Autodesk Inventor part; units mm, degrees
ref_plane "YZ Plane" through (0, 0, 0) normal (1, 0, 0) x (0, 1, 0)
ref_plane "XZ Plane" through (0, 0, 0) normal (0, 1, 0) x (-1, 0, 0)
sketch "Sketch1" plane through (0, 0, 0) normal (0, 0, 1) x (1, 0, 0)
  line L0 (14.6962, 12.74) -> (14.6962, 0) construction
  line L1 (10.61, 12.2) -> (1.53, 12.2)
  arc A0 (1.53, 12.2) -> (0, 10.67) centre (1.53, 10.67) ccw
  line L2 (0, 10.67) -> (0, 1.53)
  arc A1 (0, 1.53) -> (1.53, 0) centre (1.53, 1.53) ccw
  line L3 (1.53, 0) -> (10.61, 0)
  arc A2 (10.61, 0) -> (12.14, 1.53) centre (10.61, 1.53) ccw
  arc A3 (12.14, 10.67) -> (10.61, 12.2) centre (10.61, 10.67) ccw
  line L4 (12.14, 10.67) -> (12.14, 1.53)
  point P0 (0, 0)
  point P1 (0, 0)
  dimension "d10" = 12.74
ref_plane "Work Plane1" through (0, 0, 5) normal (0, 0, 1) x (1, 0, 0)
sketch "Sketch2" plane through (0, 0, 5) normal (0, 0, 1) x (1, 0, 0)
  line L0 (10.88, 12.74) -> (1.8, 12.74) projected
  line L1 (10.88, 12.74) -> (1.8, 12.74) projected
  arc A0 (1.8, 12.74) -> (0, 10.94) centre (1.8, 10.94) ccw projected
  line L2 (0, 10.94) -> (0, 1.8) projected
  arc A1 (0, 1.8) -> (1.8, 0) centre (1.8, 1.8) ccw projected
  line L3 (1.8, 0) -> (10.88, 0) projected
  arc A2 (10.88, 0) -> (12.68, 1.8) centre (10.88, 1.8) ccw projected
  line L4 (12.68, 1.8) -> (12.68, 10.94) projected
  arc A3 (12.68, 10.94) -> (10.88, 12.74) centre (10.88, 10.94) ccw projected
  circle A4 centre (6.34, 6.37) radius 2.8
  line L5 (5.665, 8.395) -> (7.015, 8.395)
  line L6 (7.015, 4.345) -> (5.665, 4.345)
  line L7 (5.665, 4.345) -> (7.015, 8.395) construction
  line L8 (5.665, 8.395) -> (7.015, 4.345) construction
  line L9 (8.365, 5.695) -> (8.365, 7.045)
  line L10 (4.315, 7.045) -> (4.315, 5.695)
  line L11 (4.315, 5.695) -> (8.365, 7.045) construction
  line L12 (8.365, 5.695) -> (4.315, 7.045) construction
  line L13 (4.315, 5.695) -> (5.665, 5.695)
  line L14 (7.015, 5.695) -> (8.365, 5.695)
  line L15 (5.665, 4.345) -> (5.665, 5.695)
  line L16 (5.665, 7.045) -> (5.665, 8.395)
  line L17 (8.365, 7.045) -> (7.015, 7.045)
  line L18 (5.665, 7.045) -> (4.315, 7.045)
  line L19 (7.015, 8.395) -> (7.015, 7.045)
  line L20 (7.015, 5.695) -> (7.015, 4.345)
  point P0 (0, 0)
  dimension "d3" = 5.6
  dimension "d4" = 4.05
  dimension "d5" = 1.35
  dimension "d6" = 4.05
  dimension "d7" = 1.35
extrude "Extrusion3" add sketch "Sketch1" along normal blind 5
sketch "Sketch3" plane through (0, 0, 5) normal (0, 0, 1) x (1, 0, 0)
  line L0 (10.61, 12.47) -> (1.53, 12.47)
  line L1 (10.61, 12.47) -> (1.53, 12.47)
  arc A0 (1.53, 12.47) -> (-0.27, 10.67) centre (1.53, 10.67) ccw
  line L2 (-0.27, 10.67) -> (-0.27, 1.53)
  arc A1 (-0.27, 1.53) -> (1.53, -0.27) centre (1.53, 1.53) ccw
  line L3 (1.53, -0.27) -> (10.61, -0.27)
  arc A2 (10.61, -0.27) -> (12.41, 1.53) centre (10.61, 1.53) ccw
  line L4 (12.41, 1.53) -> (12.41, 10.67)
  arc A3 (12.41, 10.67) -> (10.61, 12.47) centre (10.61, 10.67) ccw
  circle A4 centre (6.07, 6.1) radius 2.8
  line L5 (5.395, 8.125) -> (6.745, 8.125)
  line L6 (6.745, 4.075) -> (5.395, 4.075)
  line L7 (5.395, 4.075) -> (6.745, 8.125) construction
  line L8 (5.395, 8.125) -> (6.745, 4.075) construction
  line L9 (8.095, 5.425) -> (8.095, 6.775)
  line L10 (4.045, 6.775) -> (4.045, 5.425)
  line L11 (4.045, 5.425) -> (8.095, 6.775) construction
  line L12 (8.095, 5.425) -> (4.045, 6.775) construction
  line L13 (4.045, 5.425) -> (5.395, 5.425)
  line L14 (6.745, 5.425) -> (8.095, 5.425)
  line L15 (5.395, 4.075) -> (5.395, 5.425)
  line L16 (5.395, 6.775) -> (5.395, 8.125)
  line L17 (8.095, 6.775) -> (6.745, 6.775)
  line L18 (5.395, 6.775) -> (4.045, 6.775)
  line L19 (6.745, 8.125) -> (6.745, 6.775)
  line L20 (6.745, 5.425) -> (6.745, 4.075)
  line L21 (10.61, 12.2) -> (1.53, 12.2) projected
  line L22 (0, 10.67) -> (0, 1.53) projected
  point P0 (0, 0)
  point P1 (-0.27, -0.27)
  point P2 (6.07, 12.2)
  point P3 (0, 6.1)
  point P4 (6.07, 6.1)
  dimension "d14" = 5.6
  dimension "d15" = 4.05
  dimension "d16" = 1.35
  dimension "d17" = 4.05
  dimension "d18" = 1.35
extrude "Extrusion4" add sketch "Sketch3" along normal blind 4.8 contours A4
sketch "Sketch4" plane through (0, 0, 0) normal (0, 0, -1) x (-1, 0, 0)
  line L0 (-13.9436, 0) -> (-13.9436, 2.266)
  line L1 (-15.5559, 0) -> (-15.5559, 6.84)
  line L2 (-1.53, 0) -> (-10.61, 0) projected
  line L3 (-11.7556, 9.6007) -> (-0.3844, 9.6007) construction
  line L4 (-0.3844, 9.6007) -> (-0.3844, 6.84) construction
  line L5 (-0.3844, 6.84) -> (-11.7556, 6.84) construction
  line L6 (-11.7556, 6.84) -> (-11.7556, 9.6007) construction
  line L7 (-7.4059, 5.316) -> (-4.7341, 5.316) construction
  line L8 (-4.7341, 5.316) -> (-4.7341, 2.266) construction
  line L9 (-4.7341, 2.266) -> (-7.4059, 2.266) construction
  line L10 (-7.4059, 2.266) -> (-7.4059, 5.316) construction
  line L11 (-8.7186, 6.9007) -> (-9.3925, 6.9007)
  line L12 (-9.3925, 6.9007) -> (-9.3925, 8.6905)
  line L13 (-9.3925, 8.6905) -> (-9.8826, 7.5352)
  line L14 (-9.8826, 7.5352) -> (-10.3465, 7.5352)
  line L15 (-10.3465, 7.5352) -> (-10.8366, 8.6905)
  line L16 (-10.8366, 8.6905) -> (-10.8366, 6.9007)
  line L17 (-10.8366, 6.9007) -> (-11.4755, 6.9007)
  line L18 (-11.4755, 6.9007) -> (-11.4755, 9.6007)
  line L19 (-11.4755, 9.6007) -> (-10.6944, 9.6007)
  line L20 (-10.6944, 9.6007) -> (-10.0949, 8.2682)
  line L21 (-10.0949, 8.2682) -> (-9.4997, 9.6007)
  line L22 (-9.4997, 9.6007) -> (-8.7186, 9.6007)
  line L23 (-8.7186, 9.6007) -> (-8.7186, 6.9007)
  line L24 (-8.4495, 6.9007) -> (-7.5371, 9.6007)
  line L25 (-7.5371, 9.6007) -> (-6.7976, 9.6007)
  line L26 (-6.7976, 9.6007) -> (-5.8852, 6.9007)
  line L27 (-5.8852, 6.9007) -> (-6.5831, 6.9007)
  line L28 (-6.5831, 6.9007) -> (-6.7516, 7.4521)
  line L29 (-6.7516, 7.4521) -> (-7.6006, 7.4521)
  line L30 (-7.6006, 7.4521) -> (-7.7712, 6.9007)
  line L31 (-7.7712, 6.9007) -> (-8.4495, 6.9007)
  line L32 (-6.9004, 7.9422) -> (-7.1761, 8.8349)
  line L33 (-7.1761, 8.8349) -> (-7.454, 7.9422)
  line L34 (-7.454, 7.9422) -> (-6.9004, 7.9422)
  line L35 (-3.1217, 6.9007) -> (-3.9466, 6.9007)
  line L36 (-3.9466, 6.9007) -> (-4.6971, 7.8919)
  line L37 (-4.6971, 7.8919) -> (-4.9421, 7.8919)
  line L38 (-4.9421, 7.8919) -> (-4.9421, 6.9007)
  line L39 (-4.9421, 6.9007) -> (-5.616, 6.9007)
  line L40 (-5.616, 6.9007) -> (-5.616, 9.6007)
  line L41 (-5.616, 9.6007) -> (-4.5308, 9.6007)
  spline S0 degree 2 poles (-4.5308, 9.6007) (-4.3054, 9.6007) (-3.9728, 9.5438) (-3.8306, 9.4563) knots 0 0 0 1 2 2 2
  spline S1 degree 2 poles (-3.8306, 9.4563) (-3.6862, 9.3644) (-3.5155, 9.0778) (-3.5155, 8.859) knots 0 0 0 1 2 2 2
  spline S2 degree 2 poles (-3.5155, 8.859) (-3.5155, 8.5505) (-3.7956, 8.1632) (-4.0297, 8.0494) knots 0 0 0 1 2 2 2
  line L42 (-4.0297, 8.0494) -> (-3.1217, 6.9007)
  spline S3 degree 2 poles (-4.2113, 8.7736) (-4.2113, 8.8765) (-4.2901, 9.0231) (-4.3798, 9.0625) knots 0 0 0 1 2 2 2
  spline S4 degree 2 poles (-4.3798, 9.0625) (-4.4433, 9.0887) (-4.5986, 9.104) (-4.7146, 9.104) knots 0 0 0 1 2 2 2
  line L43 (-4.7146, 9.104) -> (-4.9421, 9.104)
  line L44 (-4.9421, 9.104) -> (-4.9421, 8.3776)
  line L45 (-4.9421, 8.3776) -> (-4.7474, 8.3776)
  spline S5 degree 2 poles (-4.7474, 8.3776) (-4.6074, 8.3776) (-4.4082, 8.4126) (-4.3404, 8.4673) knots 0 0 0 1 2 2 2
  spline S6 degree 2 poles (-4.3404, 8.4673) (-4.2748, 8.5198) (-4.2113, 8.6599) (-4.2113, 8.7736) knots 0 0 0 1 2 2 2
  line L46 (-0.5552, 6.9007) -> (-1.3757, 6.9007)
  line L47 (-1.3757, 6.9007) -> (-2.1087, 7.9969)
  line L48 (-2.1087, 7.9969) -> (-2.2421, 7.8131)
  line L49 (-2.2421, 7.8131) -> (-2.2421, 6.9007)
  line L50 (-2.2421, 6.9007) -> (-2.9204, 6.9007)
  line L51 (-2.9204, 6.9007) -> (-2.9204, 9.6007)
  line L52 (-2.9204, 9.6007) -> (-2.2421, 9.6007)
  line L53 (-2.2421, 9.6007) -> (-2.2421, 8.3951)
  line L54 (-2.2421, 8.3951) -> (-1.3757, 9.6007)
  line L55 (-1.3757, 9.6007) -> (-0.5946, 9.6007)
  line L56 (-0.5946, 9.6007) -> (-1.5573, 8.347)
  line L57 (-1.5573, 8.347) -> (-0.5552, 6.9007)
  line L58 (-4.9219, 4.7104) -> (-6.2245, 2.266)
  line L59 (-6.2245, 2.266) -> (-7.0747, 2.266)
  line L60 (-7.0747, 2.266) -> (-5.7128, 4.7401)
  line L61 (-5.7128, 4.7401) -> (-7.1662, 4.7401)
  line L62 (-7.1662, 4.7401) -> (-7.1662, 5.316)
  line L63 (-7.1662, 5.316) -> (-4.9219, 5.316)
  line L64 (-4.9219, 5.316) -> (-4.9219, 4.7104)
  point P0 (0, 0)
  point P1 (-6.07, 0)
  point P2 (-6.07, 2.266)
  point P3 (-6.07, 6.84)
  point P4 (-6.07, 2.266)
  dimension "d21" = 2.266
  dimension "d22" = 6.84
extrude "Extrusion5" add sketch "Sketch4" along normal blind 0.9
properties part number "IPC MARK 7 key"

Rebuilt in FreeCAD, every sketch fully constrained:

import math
import FreeCAD as App
import Part
import Sketcher


def add_polygon(sketch, points):
    """Adds a closed chain of lines whose ends are joined by coincident constraints."""
    first, n = sketch.GeometryCount, len(points)
    for a, b in zip(points, points[1:] + points[:1]):
        sketch.addGeometry(Part.LineSegment(App.Vector(*a, 0), App.Vector(*b, 0)), False)
    for i in range(n):
        sketch.addConstraint(Sketcher.Constraint("Coincident", first + i, 2, first + (i + 1) % n, 1))

doc = App.newDocument("Part")
params = doc.addObject("Spreadsheet::Sheet", "Params")
for row, (alias, value) in enumerate([
    ("sketch1_radius", "1.53 mm"),
    ("sketch1_width", "9.08 mm"),
    ("sketch1_height", "9.14 mm"),
    ("pad1_length", "5 mm"),
    ("sketch2_diameter", "5.6 mm"),
    ("sketch2_width", "1.35 mm"),
    ("pad2_length", "4.8 mm"),
    ("sketch3_height", "2.7 mm"),
    ("sketch3_height2", "2.7 mm"),
    ("sketch3_height3", "2.7 mm"),
    ("sketch3_height4", "2.7 mm"),
    ("sketch3_length", "2.85 mm"),
    ("pad3_length", "0.9 mm"),
], start=1):
    params.set(f"A{row}", alias)
    params.set(f"B{row}", "=" + value)
    params.setAlias(f"B{row}", alias)

body = doc.addObject("PartDesign::Body", "Body")

# Sketch on XY plane
sketch1 = body.newObject("Sketcher::SketchObject", "Sketch")
sketch1.AttachmentSupport = (doc.getObject("XY_Plane"), [""])
sketch1.MapMode = "FlatFace"
sketch1.addGeometry([
    Part.ArcOfCircle(Part.Circle(App.Vector(10.6, 10.7, 0), App.Vector(0, 0, 1), 1.5), math.radians(0), math.radians(90)),  # 0
    Part.LineSegment(App.Vector(10.6, 12.2, 0), App.Vector(1.5, 12.2, 0)),  # 1
    Part.ArcOfCircle(Part.Circle(App.Vector(1.5, 10.7, 0), App.Vector(0, 0, 1), 1.5), math.radians(90), math.radians(180)),  # 2
    Part.LineSegment(App.Vector(0, 10.7, 0), App.Vector(0, 1.5, 0)),  # 3
    Part.ArcOfCircle(Part.Circle(App.Vector(1.5, 1.5, 0), App.Vector(0, 0, 1), 1.5), math.radians(180), math.radians(270)),  # 4
    Part.LineSegment(App.Vector(1.5, 0, 0), App.Vector(10.6, 0, 0)),  # 5
    Part.ArcOfCircle(Part.Circle(App.Vector(10.6, 1.5, 0), App.Vector(0, 0, 1), 1.5), math.radians(-90), math.radians(0)),  # 6
    Part.LineSegment(App.Vector(12.1, 1.5, 0), App.Vector(12.1, 10.7, 0)),  # 7
], False)
sketch1.addConstraint([
    Sketcher.Constraint("Tangent", 0, 2, 1, 1),
    Sketcher.Constraint("Tangent", 1, 2, 2, 1),
    Sketcher.Constraint("Tangent", 2, 2, 3, 1),
    Sketcher.Constraint("Tangent", 3, 2, 4, 1),
    Sketcher.Constraint("Tangent", 4, 2, 5, 1),
    Sketcher.Constraint("Tangent", 5, 2, 6, 1),
    Sketcher.Constraint("Tangent", 6, 2, 7, 1),
    Sketcher.Constraint("Tangent", 7, 2, 0, 1),
    Sketcher.Constraint("Horizontal", 1),
    Sketcher.Constraint("Vertical", 3),
    Sketcher.Constraint("Horizontal", 5),
    Sketcher.Constraint("Vertical", 7),
    Sketcher.Constraint("Equal", 0, 2),
    Sketcher.Constraint("Equal", 2, 4),
    Sketcher.Constraint("Equal", 4, 6),
    Sketcher.Constraint("PointOnObject", 2, 2, -2),
    Sketcher.Constraint("PointOnObject", 4, 2, -1),
    Sketcher.Constraint("Radius", 0, 1.53),
    Sketcher.Constraint("DistanceX", 1, 2, 1, 1, 9.08),
    Sketcher.Constraint("DistanceY", 3, 2, 3, 1, 9.14),
])
sketch1.setExpression("Constraints[17]", "Params.sketch1_radius")
sketch1.setExpression("Constraints[18]", "Params.sketch1_width")
sketch1.setExpression("Constraints[19]", "Params.sketch1_height")
pad1 = body.newObject("PartDesign::Pad", "Pad")
pad1.Profile = sketch1
pad1.setExpression("Length", "Params.pad1_length")

# Sketch on XY plane
sketch2 = body.newObject("Sketcher::SketchObject", "Sketch001")
sketch2.AttachmentSupport = (doc.getObject("XY_Plane"), [""])
sketch2.MapMode = "FlatFace"
sketch2.AttachmentOffset = App.Placement(App.Vector(0, 0, 5), App.Rotation())
sketch2.addGeometry(Part.Circle(App.Vector(6.1, 6.1, 0), App.Vector(0, 0, 1), 2.8), False)  # 0
add_polygon(sketch2, [(5.4, 6.8), (5.4, 8.1), (6.7, 8.1), (6.7, 6.8), (8.1, 6.8), (8.1, 5.4), (6.7, 5.4), (6.7, 4.1), (5.4, 4.1), (5.4, 5.4), (4, 5.4), (4, 6.8)])  # lines 1-12
sketch2.addConstraint([
    Sketcher.Constraint("Vertical", 1),
    Sketcher.Constraint("Horizontal", 2),
    Sketcher.Constraint("Vertical", 3),
    Sketcher.Constraint("Horizontal", 4),
    Sketcher.Constraint("Vertical", 5),
    Sketcher.Constraint("Horizontal", 6),
    Sketcher.Constraint("Vertical", 7),
    Sketcher.Constraint("Horizontal", 8),
    Sketcher.Constraint("Vertical", 9),
    Sketcher.Constraint("Horizontal", 10),
    Sketcher.Constraint("Vertical", 11),
    Sketcher.Constraint("Horizontal", 12),
    Sketcher.Constraint("Horizontal", 6, 2, 9, 2),
    Sketcher.Constraint("Horizontal", 4, 2, 11, 2),
    Sketcher.Constraint("Vertical", 3, 2, 6, 2),
    Sketcher.Constraint("Vertical", 1, 2, 8, 2),
    Sketcher.Constraint("Equal", 2, 4),
    Sketcher.Constraint("Equal", 8, 10),
    Sketcher.Constraint("Equal", 12, 1),
    Sketcher.Constraint("Equal", 3, 5),
    Sketcher.Constraint("Equal", 5, 7),
    Sketcher.Constraint("Diameter", 0, 5.6),
    Sketcher.Constraint("DistanceX", 2, 1, 2, 2, 1.35),
    Sketcher.Constraint("DistanceY", -1, 1, 0, 3, 6.1),
    Sketcher.Constraint("DistanceX", -1, 1, 0, 3, 6.07),
    Sketcher.Constraint("DistanceX", -1, 1, 1, 2, 5.395),
    Sketcher.Constraint("DistanceY", -1, 1, 1, 2, 8.125),
])
sketch2.setExpression("Constraints[33]", "Params.sketch2_diameter")
sketch2.setExpression("Constraints[34]", "Params.sketch2_width")
pad2 = body.newObject("PartDesign::Pad", "Pad001")
pad2.Profile = sketch2
pad2.setExpression("Length", "Params.pad2_length")

# Sketch on XY plane
sketch3 = body.newObject("Sketcher::SketchObject", "Sketch002")
sketch3.AttachmentSupport = (doc.getObject("XY_Plane"), [""])
sketch3.MapMode = "FlatFace"
add_polygon(sketch3, [(9.3925, 6.9007), (8.7186, 6.9007), (8.7186, 9.6007), (9.4997, 9.6007), (10.0949, 8.2682), (10.6944, 9.6007), (11.4755, 9.6007), (11.4755, 6.9007), (10.8366, 6.9007), (10.8366, 8.6905), (10.3465, 7.5352), (9.8826, 7.5352), (9.3925, 8.6905)])  # lines 0-12
add_polygon(sketch3, [(7.5371, 9.6007), (8.4495, 6.9007), (7.7712, 6.9007), (7.6006, 7.4521), (6.7516, 7.4521), (6.5831, 6.9007), (5.8852, 6.9007), (6.7976, 9.6007)])  # lines 13-20
add_polygon(sketch3, [(7.1761, 8.8349), (6.9004, 7.9422), (7.454, 7.9422)])  # lines 21-23
sketch3.addGeometry(Part.LineSegment(App.Vector(3.9466, 6.9007, 0), App.Vector(3.1217, 6.9007, 0)), False)  # 24
sketch3.addGeometry(Part.LineSegment(App.Vector(3.1217, 6.9007, 0), App.Vector(4.0297, 8.0494, 0)), False)  # 25
sketch3.addGeometry(Part.BSplineCurve([App.Vector(3.5155, 8.859, 0), App.Vector(3.5155, 8.5505, 0), App.Vector(3.7956, 8.1632, 0), App.Vector(4.0297, 8.0494, 0)], [3, 1, 3], [0, 1, 2], False, 2, [1, 1, 1, 1], False), False)  # 26
sketch3.addGeometry(Part.BSplineCurve([App.Vector(3.8306, 9.4563, 0), App.Vector(3.6862, 9.3644, 0), App.Vector(3.5155, 9.0778, 0), App.Vector(3.5155, 8.859, 0)], [3, 1, 3], [0, 1, 2], False, 2, [1, 1, 1, 1], False), False)  # 27
sketch3.addGeometry(Part.BSplineCurve([App.Vector(4.5308, 9.6007, 0), App.Vector(4.3054, 9.6007, 0), App.Vector(3.9728, 9.5438, 0), App.Vector(3.8306, 9.4563, 0)], [3, 1, 3], [0, 1, 2], False, 2, [1, 1, 1, 1], False), False)  # 28
sketch3.addGeometry(Part.LineSegment(App.Vector(4.5308, 9.6007, 0), App.Vector(5.616, 9.6007, 0)), False)  # 29
sketch3.addGeometry(Part.LineSegment(App.Vector(5.616, 9.6007, 0), App.Vector(5.616, 6.9007, 0)), False)  # 30
sketch3.addGeometry(Part.LineSegment(App.Vector(5.616, 6.9007, 0), App.Vector(4.9421, 6.9007, 0)), False)  # 31
sketch3.addGeometry(Part.LineSegment(App.Vector(4.9421, 6.9007, 0), App.Vector(4.9421, 7.8919, 0)), False)  # 32
sketch3.addGeometry(Part.LineSegment(App.Vector(4.9421, 7.8919, 0), App.Vector(4.6971, 7.8919, 0)), False)  # 33
sketch3.addGeometry(Part.LineSegment(App.Vector(4.6971, 7.8919, 0), App.Vector(3.9466, 6.9007, 0)), False)  # 34
sketch3.addGeometry(Part.BSplineCurve([App.Vector(4.2113, 8.7736, 0), App.Vector(4.2113, 8.8765, 0), App.Vector(4.2901, 9.0231, 0), App.Vector(4.3798, 9.0625, 0)], [3, 1, 3], [0, 1, 2], False, 2, [1, 1, 1, 1], False), False)  # 35
sketch3.addGeometry(Part.BSplineCurve([App.Vector(4.3404, 8.4673, 0), App.Vector(4.2748, 8.5198, 0), App.Vector(4.2113, 8.6599, 0), App.Vector(4.2113, 8.7736, 0)], [3, 1, 3], [0, 1, 2], False, 2, [1, 1, 1, 1], False), False)  # 36
sketch3.addGeometry(Part.BSplineCurve([App.Vector(4.7474, 8.3776, 0), App.Vector(4.6074, 8.3776, 0), App.Vector(4.4082, 8.4126, 0), App.Vector(4.3404, 8.4673, 0)], [3, 1, 3], [0, 1, 2], False, 2, [1, 1, 1, 1], False), False)  # 37
sketch3.addGeometry(Part.LineSegment(App.Vector(4.7474, 8.3776, 0), App.Vector(4.9421, 8.3776, 0)), False)  # 38
sketch3.addGeometry(Part.LineSegment(App.Vector(4.9421, 8.3776, 0), App.Vector(4.9421, 9.104, 0)), False)  # 39
sketch3.addGeometry(Part.LineSegment(App.Vector(4.9421, 9.104, 0), App.Vector(4.7146, 9.104, 0)), False)  # 40
sketch3.addGeometry(Part.BSplineCurve([App.Vector(4.3798, 9.0625, 0), App.Vector(4.4433, 9.0887, 0), App.Vector(4.5986, 9.104, 0), App.Vector(4.7146, 9.104, 0)], [3, 1, 3], [0, 1, 2], False, 2, [1, 1, 1, 1], False), False)  # 41
add_polygon(sketch3, [(1.3757, 6.9007), (0.5552, 6.9007), (1.5573, 8.347), (0.5946, 9.6007), (1.3757, 9.6007), (2.2421, 8.3951), (2.2421, 9.6007), (2.9204, 9.6007), (2.9204, 6.9007), (2.2421, 6.9007), (2.2421, 7.8131), (2.1087, 7.9969)])  # lines 42-53
add_polygon(sketch3, [(6.2245, 2.266), (4.9219, 4.7104), (4.9219, 5.316), (7.1662, 5.316), (7.1662, 4.7401), (5.7128, 4.7401), (7.0747, 2.266)])  # lines 54-60
sketch3.addConstraint([
    Sketcher.Constraint("Block", 26),
    Sketcher.Constraint("Block", 27),
    Sketcher.Constraint("Block", 28),
    Sketcher.Constraint("Block", 35),
    Sketcher.Constraint("Block", 36),
    Sketcher.Constraint("Block", 37),
    Sketcher.Constraint("Block", 41),
    Sketcher.Constraint("Coincident", 24, 2, 25, 1),
    Sketcher.Constraint("Coincident", 25, 2, 26, 2),
    Sketcher.Constraint("Coincident", 28, 1, 29, 1),
    Sketcher.Constraint("Coincident", 29, 2, 30, 1),
    Sketcher.Constraint("Coincident", 30, 2, 31, 1),
    Sketcher.Constraint("Coincident", 31, 2, 32, 1),
    Sketcher.Constraint("Coincident", 32, 2, 33, 1),
    Sketcher.Constraint("Coincident", 33, 2, 34, 1),
    Sketcher.Constraint("Coincident", 34, 2, 24, 1),
    Sketcher.Constraint("Coincident", 37, 1, 38, 1),
    Sketcher.Constraint("Coincident", 38, 2, 39, 1),
    Sketcher.Constraint("Coincident", 39, 2, 40, 1),
    Sketcher.Constraint("Coincident", 40, 2, 41, 2),
    Sketcher.Constraint("Horizontal", 0),
    Sketcher.Constraint("Vertical", 1),
    Sketcher.Constraint("Horizontal", 2),
    Sketcher.Constraint("Horizontal", 5),
    Sketcher.Constraint("Vertical", 6),
    Sketcher.Constraint("Horizontal", 7),
    Sketcher.Constraint("Vertical", 8),
    Sketcher.Constraint("Horizontal", 10),
    Sketcher.Constraint("Vertical", 12),
    Sketcher.Constraint("Horizontal", 14),
    Sketcher.Constraint("Horizontal", 16),
    Sketcher.Constraint("Horizontal", 18),
    Sketcher.Constraint("Horizontal", 20),
    Sketcher.Constraint("Horizontal", 22),
    Sketcher.Constraint("Horizontal", 24),
    Sketcher.Constraint("Horizontal", 29),
    Sketcher.Constraint("Vertical", 30),
    Sketcher.Constraint("Horizontal", 31),
    Sketcher.Constraint("Vertical", 32),
    Sketcher.Constraint("Horizontal", 33),
    Sketcher.Constraint("Horizontal", 38),
    Sketcher.Constraint("Vertical", 39),
    Sketcher.Constraint("Horizontal", 40),
    Sketcher.Constraint("Horizontal", 42),
    Sketcher.Constraint("Horizontal", 45),
    Sketcher.Constraint("Vertical", 47),
    Sketcher.Constraint("Horizontal", 48),
    Sketcher.Constraint("Vertical", 49),
    Sketcher.Constraint("Horizontal", 50),
    Sketcher.Constraint("Vertical", 51),
    Sketcher.Constraint("Vertical", 55),
    Sketcher.Constraint("Horizontal", 56),
    Sketcher.Constraint("Vertical", 57),
    Sketcher.Constraint("Horizontal", 58),
    Sketcher.Constraint("Horizontal", 60),
    Sketcher.Constraint("DistanceY", 1, 1, 1, 2, 2.7),
    Sketcher.Constraint("DistanceY", 6, 2, 6, 1, 2.7),
    Sketcher.Constraint("DistanceY", 30, 2, 30, 1, 2.7),
    Sketcher.Constraint("DistanceY", 49, 2, 49, 1, 2.7),
    Sketcher.Constraint("DistanceY", -1, 1, 59, 2, 2.266),
    Sketcher.Constraint("DistanceY", 0, 2, 4, 2, 2.7),
    Sketcher.Constraint("DistanceY", 17, 2, 19, 2, 2.7),
    Sketcher.Constraint("DistanceY", 42, 2, 44, 2, 2.7),
    Sketcher.Constraint("DistanceY", 24, 2, 44, 2, 2.7),
    Sketcher.Constraint("Distance", 13, 2.85),
    Sketcher.Constraint("Distance", 19, 2.85),
    Sketcher.Constraint("DistanceX", 0, 2, 0, 1, 0.674),
    Sketcher.Constraint("DistanceX", 2, 1, 2, 2, 0.781),
    Sketcher.Constraint("DistanceX", 5, 1, 5, 2, 0.781),
    Sketcher.Constraint("DistanceX", 7, 2, 7, 1, 0.639),
    Sketcher.Constraint("DistanceX", 10, 2, 10, 1, 0.464),
    Sketcher.Constraint("DistanceX", 16, 2, 16, 1, 0.849),
    Sketcher.Constraint("DistanceX", 18, 2, 18, 1, 0.698),
    Sketcher.Constraint("DistanceX", 24, 2, 24, 1, 0.825),
    Sketcher.Constraint("DistanceX", 31, 2, 31, 1, 0.674),
    Sketcher.Constraint("DistanceX", 33, 2, 33, 1, 0.245),
    Sketcher.Constraint("DistanceX", 45, 1, 45, 2, 0.781),
    Sketcher.Constraint("DistanceY", 57, 2, 57, 1, 0.576),
    Sketcher.Constraint("DistanceY", -1, 1, 57, 2, 4.74),
    Sketcher.Constraint("DistanceX", 9, 2, 7, 2, 0.49),
    Sketcher.Constraint("DistanceX", 11, 2, 10, 2, 0.49),
    Sketcher.Constraint("DistanceY", 16, 2, 21, 2, 0.49),
    Sketcher.Constraint("DistanceX", 24, 2, 16, 2, 3.63),
    Sketcher.Constraint("DistanceX", 29, 2, 23, 2, 1.56),
    Sketcher.Constraint("DistanceX", 44, 2, 40, 2, 4.12),
    Sketcher.Constraint("DistanceY", 52, 2, 43, 2, 0.35),
    Sketcher.Constraint("Distance", 9, 1.255),
    Sketcher.Constraint("Distance", 11, 1.255),
    Sketcher.Constraint("Distance", 23, 0.935),
    Sketcher.Constraint("Distance", 52, 0.227),
    Sketcher.Constraint("DistanceX", 14, 2, 14, 1, 0.6783),
    Sketcher.Constraint("DistanceX", 20, 1, 20, 2, 0.7395),
    Sketcher.Constraint("DistanceX", 22, 1, 22, 2, 0.5536),
    Sketcher.Constraint("DistanceX", 29, 1, 29, 2, 1.0852),
    Sketcher.Constraint("DistanceX", 38, 1, 38, 2, 0.1947),
    Sketcher.Constraint("DistanceX", 42, 2, 42, 1, 0.8205),
    Sketcher.Constraint("DistanceX", 48, 1, 48, 2, 0.6783),
    Sketcher.Constraint("DistanceX", 50, 2, 50, 1, 0.6783),
    Sketcher.Constraint("DistanceX", 56, 1, 56, 2, 2.2443),
    Sketcher.Constraint("DistanceX", 58, 2, 58, 1, 1.4534),
    Sketcher.Constraint("DistanceX", 60, 2, 60, 1, 0.8502),
    Sketcher.Constraint("DistanceY", 8, 1, 8, 2, 1.7898),
    Sketcher.Constraint("DistanceY", 32, 1, 32, 2, 0.9912),
    Sketcher.Constraint("DistanceY", 47, 1, 47, 2, 1.2056),
    Sketcher.Constraint("DistanceY", 51, 1, 51, 2, 0.9124),
    Sketcher.Constraint("DistanceY", 55, 1, 55, 2, 0.6056),
    Sketcher.Constraint("DistanceX", -1, 1, 3, 2, 10.095),
    Sketcher.Constraint("DistanceY", -1, 1, 15, 2, 7.452),
    Sketcher.Constraint("DistanceX", -1, 1, 17, 2, 6.583),
    Sketcher.Constraint("DistanceX", -1, 1, 22, 2, 7.454),
    Sketcher.Constraint("DistanceY", -1, 1, 43, 2, 8.347),
    Sketcher.Constraint("DistanceX", -1, 1, 46, 2, 2.242),
    Sketcher.Constraint("DistanceY", -1, 1, 46, 2, 8.395),
    Sketcher.Constraint("DistanceX", -1, 1, 54, 2, 4.922),
    Sketcher.Constraint("DistanceY", 9, 2, 3, 2, 0.733),
    Sketcher.Constraint("DistanceX", 13, 2, 0, 2, 0.269),
    Sketcher.Constraint("DistanceX", 15, 2, 13, 2, 0.849),
    Sketcher.Constraint("DistanceX", 17, 2, 14, 2, 1.188),
    Sketcher.Constraint("DistanceX", 42, 2, 33, 2, 4.142),
    Sketcher.Constraint("DistanceX", 42, 2, 43, 2, 1.002),
    Sketcher.Constraint("DistanceX", 58, 2, 59, 2, 1.362),
    Sketcher.Constraint("Distance", 15, 0.5772),
    Sketcher.Constraint("Distance", 25, 1.4642),
    Sketcher.Constraint("DistanceY", -1, 1, 0, 2, 6.9007),
])
sketch3.setExpression("Constraints[98]", "Params.sketch3_height")
sketch3.setExpression("Constraints[99]", "Params.sketch3_height2")
sketch3.setExpression("Constraints[100]", "Params.sketch3_height3")
sketch3.setExpression("Constraints[101]", "Params.sketch3_height4")
sketch3.setExpression("Constraints[107]", "Params.sketch3_length")
pad3 = body.newObject("PartDesign::Pad", "Pad002")
pad3.Profile = sketch3
pad3.setExpression("Length", "Params.pad3_length")
pad3.Reversed = True

doc.recompute()
